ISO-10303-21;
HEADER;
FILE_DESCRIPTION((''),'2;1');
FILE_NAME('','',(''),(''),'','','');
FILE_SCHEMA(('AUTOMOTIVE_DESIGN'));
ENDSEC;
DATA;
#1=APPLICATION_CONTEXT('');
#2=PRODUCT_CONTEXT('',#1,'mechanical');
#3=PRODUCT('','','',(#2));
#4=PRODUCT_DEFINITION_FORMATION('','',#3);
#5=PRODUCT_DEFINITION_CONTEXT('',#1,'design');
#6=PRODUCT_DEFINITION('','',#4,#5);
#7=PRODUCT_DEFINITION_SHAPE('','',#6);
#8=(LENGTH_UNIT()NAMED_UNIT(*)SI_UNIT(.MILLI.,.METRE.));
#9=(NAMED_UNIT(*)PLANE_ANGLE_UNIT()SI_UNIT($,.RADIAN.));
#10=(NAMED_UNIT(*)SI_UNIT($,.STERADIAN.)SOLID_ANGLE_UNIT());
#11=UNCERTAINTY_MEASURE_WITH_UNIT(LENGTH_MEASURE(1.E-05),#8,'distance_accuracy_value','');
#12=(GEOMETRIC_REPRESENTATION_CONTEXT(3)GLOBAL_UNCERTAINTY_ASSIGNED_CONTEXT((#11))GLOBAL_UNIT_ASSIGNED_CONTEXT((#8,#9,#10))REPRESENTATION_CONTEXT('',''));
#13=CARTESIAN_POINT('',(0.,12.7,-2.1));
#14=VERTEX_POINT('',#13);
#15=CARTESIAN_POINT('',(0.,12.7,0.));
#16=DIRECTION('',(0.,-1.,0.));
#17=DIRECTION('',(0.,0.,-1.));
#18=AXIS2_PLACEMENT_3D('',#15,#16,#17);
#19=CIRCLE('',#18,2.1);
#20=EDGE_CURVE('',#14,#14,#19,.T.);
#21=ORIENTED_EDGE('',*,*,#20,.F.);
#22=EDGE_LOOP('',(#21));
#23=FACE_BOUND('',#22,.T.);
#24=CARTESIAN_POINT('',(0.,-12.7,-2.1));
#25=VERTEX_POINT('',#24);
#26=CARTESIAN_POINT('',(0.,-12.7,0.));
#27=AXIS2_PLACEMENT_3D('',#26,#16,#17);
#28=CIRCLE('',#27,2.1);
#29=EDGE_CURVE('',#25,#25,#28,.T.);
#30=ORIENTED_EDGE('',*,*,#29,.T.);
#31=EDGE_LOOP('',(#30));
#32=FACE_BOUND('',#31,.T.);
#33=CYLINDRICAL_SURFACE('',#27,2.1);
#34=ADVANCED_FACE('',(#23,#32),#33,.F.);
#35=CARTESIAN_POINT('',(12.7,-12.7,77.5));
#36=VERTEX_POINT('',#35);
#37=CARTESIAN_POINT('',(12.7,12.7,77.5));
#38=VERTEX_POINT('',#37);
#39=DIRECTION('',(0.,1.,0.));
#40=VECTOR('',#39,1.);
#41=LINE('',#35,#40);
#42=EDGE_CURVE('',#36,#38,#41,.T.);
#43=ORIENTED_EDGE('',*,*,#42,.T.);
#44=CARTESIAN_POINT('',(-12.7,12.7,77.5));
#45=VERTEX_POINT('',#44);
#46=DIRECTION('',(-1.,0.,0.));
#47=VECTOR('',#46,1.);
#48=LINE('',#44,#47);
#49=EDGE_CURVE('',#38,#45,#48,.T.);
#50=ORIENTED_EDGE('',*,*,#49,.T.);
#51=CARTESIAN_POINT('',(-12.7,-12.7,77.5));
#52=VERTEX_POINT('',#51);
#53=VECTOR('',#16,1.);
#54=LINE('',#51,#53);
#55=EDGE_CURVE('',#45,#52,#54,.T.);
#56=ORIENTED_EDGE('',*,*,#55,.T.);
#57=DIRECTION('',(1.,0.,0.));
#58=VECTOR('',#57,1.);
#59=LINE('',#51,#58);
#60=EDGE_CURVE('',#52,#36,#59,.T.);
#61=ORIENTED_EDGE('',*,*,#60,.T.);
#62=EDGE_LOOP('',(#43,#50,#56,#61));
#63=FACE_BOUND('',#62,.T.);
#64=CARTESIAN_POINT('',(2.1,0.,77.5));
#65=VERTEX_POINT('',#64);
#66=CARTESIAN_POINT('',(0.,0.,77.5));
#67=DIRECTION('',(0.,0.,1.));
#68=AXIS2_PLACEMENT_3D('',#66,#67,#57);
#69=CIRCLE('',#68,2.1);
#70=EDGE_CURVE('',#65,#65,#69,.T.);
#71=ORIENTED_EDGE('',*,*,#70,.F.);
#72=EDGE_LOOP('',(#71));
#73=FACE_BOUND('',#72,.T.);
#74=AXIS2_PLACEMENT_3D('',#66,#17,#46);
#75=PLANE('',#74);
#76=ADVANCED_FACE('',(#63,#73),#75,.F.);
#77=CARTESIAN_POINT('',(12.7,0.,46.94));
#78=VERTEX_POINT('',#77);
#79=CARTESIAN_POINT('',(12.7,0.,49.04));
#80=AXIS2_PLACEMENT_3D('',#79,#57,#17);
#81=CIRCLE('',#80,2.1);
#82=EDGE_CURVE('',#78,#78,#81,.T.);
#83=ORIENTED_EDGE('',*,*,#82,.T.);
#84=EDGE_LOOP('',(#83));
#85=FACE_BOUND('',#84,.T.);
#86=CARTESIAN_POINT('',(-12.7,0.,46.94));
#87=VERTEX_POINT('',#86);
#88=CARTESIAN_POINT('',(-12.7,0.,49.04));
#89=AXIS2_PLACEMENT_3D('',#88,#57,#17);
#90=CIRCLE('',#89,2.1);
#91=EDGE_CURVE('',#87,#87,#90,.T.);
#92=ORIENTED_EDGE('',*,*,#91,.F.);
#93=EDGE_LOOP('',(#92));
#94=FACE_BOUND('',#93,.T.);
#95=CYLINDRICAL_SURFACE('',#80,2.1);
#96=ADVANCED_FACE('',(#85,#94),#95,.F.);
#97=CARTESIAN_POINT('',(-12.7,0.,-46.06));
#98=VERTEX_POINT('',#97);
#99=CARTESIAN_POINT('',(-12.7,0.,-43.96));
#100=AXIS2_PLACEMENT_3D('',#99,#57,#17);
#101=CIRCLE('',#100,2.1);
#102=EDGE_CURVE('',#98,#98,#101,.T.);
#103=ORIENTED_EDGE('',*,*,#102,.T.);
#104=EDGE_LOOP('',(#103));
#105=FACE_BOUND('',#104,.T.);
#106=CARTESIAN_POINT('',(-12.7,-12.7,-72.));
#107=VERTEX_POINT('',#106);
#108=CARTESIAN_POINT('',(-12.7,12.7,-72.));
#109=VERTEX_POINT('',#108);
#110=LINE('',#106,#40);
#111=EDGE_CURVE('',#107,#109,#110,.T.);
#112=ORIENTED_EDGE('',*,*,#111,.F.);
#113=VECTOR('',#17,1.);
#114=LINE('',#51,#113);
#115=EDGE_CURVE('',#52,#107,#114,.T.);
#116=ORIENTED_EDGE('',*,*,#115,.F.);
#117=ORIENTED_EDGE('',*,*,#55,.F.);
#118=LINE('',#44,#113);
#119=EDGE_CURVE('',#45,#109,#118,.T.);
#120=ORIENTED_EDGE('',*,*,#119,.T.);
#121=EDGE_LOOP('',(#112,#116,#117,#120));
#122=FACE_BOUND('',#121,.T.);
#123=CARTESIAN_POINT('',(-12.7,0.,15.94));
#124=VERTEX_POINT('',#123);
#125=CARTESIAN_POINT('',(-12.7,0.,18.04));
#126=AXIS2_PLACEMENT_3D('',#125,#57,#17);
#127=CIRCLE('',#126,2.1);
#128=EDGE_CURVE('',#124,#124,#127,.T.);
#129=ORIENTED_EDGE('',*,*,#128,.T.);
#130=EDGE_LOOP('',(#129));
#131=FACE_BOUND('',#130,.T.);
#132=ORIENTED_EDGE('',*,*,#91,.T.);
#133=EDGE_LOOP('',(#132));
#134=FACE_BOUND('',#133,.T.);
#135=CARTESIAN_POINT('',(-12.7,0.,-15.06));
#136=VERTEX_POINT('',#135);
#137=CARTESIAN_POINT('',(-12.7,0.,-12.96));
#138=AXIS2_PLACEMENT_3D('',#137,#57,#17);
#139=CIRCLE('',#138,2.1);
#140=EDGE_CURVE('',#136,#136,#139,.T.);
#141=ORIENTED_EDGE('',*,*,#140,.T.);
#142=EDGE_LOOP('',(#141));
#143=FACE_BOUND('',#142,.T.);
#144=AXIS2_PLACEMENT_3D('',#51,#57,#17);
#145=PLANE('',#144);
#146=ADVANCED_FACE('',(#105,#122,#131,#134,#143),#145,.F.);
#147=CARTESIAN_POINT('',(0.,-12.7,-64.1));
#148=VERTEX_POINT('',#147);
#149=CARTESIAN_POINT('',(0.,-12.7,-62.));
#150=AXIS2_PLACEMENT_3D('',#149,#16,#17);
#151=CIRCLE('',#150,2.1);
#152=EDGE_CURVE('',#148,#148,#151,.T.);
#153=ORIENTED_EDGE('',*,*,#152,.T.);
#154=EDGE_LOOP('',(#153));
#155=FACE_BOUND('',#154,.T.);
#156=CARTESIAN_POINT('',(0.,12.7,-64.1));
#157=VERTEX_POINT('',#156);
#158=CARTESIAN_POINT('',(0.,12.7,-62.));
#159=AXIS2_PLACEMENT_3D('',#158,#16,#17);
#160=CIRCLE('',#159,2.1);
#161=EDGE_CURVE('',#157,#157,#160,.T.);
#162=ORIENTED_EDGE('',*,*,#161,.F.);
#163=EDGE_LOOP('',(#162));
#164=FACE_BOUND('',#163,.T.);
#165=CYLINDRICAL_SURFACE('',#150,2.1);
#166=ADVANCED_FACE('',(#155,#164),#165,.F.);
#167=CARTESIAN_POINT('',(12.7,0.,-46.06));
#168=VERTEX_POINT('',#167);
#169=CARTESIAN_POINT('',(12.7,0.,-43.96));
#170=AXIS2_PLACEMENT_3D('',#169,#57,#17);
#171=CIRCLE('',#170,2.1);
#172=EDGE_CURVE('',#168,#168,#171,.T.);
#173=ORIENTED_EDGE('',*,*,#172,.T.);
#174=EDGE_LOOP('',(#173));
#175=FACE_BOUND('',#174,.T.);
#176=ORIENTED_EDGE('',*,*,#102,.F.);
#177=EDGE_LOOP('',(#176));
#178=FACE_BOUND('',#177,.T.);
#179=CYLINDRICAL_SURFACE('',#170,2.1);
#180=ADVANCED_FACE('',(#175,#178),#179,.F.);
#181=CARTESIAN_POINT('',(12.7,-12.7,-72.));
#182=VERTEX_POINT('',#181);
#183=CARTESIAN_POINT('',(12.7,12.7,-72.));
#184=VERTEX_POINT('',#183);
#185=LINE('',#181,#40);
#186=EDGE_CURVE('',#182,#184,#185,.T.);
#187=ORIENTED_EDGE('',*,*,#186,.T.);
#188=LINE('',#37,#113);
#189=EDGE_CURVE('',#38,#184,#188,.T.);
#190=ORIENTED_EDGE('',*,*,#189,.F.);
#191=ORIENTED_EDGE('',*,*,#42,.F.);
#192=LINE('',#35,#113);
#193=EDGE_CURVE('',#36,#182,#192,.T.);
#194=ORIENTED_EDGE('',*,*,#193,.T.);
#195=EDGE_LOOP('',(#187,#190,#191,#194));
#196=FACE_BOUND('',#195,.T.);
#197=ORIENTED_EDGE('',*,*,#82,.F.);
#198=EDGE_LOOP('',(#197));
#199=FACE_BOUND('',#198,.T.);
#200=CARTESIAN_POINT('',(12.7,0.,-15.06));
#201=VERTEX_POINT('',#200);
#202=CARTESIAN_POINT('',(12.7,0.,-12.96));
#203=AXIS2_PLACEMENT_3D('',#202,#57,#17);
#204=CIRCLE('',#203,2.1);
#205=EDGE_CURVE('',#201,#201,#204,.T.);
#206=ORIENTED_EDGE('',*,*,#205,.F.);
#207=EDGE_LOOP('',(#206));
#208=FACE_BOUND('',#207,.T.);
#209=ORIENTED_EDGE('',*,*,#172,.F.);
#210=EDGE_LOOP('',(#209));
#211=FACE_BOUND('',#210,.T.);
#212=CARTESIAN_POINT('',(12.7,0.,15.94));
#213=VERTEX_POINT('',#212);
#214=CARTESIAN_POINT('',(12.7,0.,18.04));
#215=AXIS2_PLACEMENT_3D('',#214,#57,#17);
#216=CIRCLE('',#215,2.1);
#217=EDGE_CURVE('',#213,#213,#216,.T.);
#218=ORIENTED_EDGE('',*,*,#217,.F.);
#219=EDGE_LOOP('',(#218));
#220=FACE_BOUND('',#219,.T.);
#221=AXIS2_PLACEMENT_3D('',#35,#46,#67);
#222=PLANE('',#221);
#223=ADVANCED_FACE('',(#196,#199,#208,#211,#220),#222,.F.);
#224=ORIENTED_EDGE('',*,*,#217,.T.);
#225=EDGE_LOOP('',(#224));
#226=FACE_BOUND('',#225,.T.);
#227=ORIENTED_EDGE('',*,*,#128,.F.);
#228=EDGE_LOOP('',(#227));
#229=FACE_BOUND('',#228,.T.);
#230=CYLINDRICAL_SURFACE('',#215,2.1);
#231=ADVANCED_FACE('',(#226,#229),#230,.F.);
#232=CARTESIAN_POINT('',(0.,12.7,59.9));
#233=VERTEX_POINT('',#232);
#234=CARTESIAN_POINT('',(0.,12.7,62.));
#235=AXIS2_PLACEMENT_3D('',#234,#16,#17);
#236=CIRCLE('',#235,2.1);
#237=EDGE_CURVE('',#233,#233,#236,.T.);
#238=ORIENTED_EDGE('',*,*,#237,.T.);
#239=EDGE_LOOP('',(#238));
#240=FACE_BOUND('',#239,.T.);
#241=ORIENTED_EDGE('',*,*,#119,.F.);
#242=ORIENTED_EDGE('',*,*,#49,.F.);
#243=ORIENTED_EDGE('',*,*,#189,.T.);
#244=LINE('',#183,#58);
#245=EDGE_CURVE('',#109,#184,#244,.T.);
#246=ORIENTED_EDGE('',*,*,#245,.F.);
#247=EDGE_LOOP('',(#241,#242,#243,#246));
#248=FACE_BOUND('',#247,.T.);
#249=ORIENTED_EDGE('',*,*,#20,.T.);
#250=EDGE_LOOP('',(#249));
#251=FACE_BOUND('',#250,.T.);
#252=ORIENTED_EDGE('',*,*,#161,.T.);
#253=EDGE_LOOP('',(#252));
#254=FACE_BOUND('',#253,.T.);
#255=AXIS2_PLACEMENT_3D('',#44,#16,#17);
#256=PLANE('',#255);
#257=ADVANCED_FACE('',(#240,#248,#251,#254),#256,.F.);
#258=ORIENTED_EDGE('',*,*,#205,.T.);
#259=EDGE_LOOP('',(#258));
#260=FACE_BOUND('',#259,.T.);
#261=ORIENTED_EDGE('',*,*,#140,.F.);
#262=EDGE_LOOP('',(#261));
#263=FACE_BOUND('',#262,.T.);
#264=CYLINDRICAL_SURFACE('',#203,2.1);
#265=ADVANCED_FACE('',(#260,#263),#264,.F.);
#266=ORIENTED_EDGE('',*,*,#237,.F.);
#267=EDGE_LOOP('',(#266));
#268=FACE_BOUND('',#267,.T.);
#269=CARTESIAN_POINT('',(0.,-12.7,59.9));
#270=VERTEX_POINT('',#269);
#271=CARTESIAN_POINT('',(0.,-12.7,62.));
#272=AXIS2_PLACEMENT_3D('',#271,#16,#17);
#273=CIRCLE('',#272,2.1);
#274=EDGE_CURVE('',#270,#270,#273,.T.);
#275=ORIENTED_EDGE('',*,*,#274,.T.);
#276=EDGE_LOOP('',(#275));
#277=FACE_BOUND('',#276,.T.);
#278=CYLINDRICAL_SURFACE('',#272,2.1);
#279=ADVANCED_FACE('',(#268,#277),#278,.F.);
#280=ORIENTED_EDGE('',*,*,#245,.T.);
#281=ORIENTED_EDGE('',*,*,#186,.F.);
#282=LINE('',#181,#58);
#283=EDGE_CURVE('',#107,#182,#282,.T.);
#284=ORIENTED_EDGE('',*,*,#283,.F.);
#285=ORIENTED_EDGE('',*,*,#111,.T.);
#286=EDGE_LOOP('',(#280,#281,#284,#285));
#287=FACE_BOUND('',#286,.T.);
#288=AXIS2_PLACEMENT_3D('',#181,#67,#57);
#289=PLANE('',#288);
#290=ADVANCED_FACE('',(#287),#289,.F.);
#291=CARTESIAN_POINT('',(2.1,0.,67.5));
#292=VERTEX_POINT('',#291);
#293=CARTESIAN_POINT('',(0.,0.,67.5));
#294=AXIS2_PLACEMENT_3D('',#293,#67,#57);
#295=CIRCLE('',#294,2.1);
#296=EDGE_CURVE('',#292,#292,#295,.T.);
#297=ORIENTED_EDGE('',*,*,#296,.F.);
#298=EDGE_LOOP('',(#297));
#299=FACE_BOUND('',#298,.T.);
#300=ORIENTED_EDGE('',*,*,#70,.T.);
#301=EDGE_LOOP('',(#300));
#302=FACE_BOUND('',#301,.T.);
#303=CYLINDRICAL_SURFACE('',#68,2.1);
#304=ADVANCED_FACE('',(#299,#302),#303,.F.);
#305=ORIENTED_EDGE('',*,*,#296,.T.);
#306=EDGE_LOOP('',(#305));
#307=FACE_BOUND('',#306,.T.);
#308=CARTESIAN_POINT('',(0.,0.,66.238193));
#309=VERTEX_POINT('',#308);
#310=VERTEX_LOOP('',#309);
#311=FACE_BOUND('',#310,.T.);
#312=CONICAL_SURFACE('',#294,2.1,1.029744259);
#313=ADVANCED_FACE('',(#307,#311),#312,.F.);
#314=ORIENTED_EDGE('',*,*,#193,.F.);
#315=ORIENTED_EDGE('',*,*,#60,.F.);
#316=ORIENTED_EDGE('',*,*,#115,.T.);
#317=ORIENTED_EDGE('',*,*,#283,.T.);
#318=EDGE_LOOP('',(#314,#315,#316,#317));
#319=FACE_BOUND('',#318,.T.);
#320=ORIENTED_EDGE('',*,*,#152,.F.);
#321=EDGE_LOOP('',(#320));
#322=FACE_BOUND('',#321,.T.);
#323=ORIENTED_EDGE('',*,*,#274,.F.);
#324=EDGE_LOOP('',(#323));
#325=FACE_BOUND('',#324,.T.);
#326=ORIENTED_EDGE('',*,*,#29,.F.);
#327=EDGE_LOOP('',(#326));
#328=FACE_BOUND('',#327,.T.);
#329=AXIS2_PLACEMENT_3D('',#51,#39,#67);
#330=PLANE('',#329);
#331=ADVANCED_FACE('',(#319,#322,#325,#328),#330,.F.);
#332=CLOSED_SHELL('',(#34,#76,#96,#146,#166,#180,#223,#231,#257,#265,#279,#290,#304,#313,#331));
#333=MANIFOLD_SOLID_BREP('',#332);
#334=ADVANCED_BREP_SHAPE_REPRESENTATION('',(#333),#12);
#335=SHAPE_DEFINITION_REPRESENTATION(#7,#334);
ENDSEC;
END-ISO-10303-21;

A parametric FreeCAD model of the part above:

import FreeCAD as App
import Part
import Sketcher

V = App.Vector
Q = App.Units.Quantity

doc = App.newDocument("Part")
body = doc.addObject("PartDesign::Body", "Body")

# Sketch on XY plane
sketch1 = body.newObject("Sketcher::SketchObject", "Sketch")
sketch1.AttachmentSupport = (doc.getObject("XY_Plane"), [""])
sketch1.MapMode = "FlatFace"
sketch1.addGeometry([
    Part.LineSegment(V(-12.7, 12.7, 0), V(-12.7, -12.7, 0)),
    Part.LineSegment(V(-12.7, -12.7, 0), V(12.7, -12.7, 0)),
    Part.LineSegment(V(12.7, -12.7, 0), V(12.7, 12.7, 0)),
    Part.LineSegment(V(12.7, 12.7, 0), V(-12.7, 12.7, 0)),
], False)
sketch1.addConstraint([
    Sketcher.Constraint("Coincident", 0, 2, 1, 1),
    Sketcher.Constraint("Coincident", 1, 2, 2, 1),
    Sketcher.Constraint("Coincident", 2, 2, 3, 1),
    Sketcher.Constraint("Coincident", 3, 2, 0, 1),
    Sketcher.Constraint("Vertical", 0),
    Sketcher.Constraint("Horizontal", 1),
    Sketcher.Constraint("Vertical", 2),
    Sketcher.Constraint("Horizontal", 3),
    Sketcher.Constraint("Symmetric", 0, 2, 2, 2, -1, 1),
    Sketcher.Constraint("Equal", 3, 0),
    Sketcher.Constraint("DistanceX", 1, 1, 1, 2, Q("25.4 mm")),
])
pad1 = body.newObject("PartDesign::Pad", "Pad")
pad1.Profile = sketch1
pad1.Length = 155
pad1.Midplane = True

# Sketch on XZ plane
sketch2 = body.newObject("Sketcher::SketchObject", "Sketch001")
sketch2.AttachmentSupport = (doc.getObject("XZ_Plane"), [""])
sketch2.MapMode = "FlatFace"
sketch2.AttachmentOffset = App.Placement(V(0, 0, 12.7), App.Rotation())
sketch2.addGeometry([
    Part.Circle(V(0, 62, 0), V(0, 0, 1), 2.1),
    Part.Circle(V(0, 0, 0), V(0, 0, 1), 2.1),
    Part.Circle(V(0, -62, 0), V(0, 0, 1), 2.1),
], False)
sketch2.addConstraint([
    Sketcher.Constraint("Coincident", 1, 3, -1, 1),
    Sketcher.Constraint("Equal", 0, 1),
    Sketcher.Constraint("Equal", 1, 2),
    Sketcher.Constraint("Symmetric", 0, 3, 2, 3, -1, 1),
    Sketcher.Constraint("PointOnObject", 0, 3, -2),
    Sketcher.Constraint("Diameter", 0, Q("4.2 mm")),
    Sketcher.Constraint("DistanceY", -1, 1, 0, 3, Q("62 mm")),
])
doc.recompute()
hole = body.newObject("PartDesign::Hole", "Hole")
hole.Profile = sketch2
hole.ThreadType = "None"
hole.Diameter = 4.2
hole.DepthType = "ThroughAll"

# Sketch on XY plane
sketch3 = body.newObject("Sketcher::SketchObject", "Sketch002")
sketch3.AttachmentSupport = (doc.getObject("XY_Plane"), [""])
sketch3.MapMode = "FlatFace"
sketch3.AttachmentOffset = App.Placement(V(0, 0, 77.5), App.Rotation())
sketch3.addGeometry(Part.Circle(V(0, 0, 0), V(0, 0, 1), 2.1), False)
sketch3.addConstraint([
    Sketcher.Constraint("Coincident", 0, 3, -1, 1),
    Sketcher.Constraint("Diameter", 0, Q("4.2 mm")),
])
doc.recompute()
hole2 = body.newObject("PartDesign::Hole", "Hole001")
hole2.Profile = sketch3
hole2.ThreadType = "None"
hole2.Diameter = 4.2
hole2.DepthType = "Dimension"
hole2.Depth = 10
hole2.DrillPoint = "Angled"
hole2.DrillPointAngle = 118

# Sketch on XZ plane
sketch4 = body.newObject("Sketcher::SketchObject", "Sketch003")
sketch4.AttachmentSupport = (doc.getObject("XZ_Plane"), [""])
sketch4.MapMode = "FlatFace"
sketch4.AttachmentOffset = App.Placement(V(0, 0, -12.7), App.Rotation())
sketch4.addGeometry([
    Part.LineSegment(V(-12.7, -77.5, 0), V(-12.7, -72, 0)),
    Part.LineSegment(V(-12.7, -72, 0), V(12.7, -72, 0)),
    Part.LineSegment(V(12.7, -72, 0), V(12.7, -77.5, 0)),
    Part.LineSegment(V(12.7, -77.5, 0), V(-12.7, -77.5, 0)),
], False)
sketch4.addConstraint([
    Sketcher.Constraint("Coincident", 0, 2, 1, 1),
    Sketcher.Constraint("Coincident", 1, 2, 2, 1),
    Sketcher.Constraint("Coincident", 2, 2, 3, 1),
    Sketcher.Constraint("Coincident", 3, 2, 0, 1),
    Sketcher.Constraint("Vertical", 0),
    Sketcher.Constraint("Horizontal", 1),
    Sketcher.Constraint("Vertical", 2),
    Sketcher.Constraint("Horizontal", 3),
    Sketcher.Constraint("DistanceX", 1, 1, 1, 2, Q("25.4 mm")),
    Sketcher.Constraint("DistanceY", 0, 1, 0, 2, Q("5.5 mm")),
    Sketcher.Constraint("DistanceY", 0, 2, -1, 1, Q("72 mm")),
    Sketcher.Constraint("DistanceX", 0, 2, -1, 1, Q("12.7 mm")),
])
pocket1 = body.newObject("PartDesign::Pocket", "Pocket")
pocket1.Profile = sketch4
pocket1.Type = "ThroughAll"
pocket1.Reversed = True

# Sketch on YZ plane
sketch5 = body.newObject("Sketcher::SketchObject", "Sketch004")
sketch5.AttachmentSupport = (doc.getObject("YZ_Plane"), [""])
sketch5.MapMode = "FlatFace"
sketch5.AttachmentOffset = App.Placement(V(0, 0, 12.7), App.Rotation())
sketch5.addGeometry([
    Part.Circle(V(0, 49.04, 0), V(0, 0, 1), 2.1),
    Part.Circle(V(0, 18.04, 0), V(0, 0, 1), 2.1),
    Part.Circle(V(0, -12.96, 0), V(0, 0, 1), 2.1),
    Part.Circle(V(0, -43.96, 0), V(0, 0, 1), 2.1),
], False)
sketch5.addConstraint([
    Sketcher.Constraint("Equal", 0, 1),
    Sketcher.Constraint("Equal", 1, 2),
    Sketcher.Constraint("Equal", 2, 3),
    Sketcher.Constraint("PointOnObject", 0, 3, -2),
    Sketcher.Constraint("PointOnObject", 1, 3, -2),
    Sketcher.Constraint("PointOnObject", 2, 3, -2),
    Sketcher.Constraint("PointOnObject", 3, 3, -2),
    Sketcher.Constraint("Diameter", 0, Q("4.2 mm")),
    Sketcher.Constraint("DistanceY", 1, 3, 0, 3, Q("31 mm")),
    Sketcher.Constraint("DistanceY", 2, 3, 1, 3, Q("31 mm")),
    Sketcher.Constraint("DistanceY", 3, 3, 2, 3, Q("31 mm")),
    Sketcher.Constraint("DistanceY", -1, 1, 0, 3, Q("49.04 mm")),
])
doc.recompute()
hole3 = body.newObject("PartDesign::Hole", "Hole002")
hole3.Profile = sketch5
hole3.ThreadType = "None"
hole3.Diameter = 4.2
hole3.DepthType = "ThroughAll"

doc.recompute()
